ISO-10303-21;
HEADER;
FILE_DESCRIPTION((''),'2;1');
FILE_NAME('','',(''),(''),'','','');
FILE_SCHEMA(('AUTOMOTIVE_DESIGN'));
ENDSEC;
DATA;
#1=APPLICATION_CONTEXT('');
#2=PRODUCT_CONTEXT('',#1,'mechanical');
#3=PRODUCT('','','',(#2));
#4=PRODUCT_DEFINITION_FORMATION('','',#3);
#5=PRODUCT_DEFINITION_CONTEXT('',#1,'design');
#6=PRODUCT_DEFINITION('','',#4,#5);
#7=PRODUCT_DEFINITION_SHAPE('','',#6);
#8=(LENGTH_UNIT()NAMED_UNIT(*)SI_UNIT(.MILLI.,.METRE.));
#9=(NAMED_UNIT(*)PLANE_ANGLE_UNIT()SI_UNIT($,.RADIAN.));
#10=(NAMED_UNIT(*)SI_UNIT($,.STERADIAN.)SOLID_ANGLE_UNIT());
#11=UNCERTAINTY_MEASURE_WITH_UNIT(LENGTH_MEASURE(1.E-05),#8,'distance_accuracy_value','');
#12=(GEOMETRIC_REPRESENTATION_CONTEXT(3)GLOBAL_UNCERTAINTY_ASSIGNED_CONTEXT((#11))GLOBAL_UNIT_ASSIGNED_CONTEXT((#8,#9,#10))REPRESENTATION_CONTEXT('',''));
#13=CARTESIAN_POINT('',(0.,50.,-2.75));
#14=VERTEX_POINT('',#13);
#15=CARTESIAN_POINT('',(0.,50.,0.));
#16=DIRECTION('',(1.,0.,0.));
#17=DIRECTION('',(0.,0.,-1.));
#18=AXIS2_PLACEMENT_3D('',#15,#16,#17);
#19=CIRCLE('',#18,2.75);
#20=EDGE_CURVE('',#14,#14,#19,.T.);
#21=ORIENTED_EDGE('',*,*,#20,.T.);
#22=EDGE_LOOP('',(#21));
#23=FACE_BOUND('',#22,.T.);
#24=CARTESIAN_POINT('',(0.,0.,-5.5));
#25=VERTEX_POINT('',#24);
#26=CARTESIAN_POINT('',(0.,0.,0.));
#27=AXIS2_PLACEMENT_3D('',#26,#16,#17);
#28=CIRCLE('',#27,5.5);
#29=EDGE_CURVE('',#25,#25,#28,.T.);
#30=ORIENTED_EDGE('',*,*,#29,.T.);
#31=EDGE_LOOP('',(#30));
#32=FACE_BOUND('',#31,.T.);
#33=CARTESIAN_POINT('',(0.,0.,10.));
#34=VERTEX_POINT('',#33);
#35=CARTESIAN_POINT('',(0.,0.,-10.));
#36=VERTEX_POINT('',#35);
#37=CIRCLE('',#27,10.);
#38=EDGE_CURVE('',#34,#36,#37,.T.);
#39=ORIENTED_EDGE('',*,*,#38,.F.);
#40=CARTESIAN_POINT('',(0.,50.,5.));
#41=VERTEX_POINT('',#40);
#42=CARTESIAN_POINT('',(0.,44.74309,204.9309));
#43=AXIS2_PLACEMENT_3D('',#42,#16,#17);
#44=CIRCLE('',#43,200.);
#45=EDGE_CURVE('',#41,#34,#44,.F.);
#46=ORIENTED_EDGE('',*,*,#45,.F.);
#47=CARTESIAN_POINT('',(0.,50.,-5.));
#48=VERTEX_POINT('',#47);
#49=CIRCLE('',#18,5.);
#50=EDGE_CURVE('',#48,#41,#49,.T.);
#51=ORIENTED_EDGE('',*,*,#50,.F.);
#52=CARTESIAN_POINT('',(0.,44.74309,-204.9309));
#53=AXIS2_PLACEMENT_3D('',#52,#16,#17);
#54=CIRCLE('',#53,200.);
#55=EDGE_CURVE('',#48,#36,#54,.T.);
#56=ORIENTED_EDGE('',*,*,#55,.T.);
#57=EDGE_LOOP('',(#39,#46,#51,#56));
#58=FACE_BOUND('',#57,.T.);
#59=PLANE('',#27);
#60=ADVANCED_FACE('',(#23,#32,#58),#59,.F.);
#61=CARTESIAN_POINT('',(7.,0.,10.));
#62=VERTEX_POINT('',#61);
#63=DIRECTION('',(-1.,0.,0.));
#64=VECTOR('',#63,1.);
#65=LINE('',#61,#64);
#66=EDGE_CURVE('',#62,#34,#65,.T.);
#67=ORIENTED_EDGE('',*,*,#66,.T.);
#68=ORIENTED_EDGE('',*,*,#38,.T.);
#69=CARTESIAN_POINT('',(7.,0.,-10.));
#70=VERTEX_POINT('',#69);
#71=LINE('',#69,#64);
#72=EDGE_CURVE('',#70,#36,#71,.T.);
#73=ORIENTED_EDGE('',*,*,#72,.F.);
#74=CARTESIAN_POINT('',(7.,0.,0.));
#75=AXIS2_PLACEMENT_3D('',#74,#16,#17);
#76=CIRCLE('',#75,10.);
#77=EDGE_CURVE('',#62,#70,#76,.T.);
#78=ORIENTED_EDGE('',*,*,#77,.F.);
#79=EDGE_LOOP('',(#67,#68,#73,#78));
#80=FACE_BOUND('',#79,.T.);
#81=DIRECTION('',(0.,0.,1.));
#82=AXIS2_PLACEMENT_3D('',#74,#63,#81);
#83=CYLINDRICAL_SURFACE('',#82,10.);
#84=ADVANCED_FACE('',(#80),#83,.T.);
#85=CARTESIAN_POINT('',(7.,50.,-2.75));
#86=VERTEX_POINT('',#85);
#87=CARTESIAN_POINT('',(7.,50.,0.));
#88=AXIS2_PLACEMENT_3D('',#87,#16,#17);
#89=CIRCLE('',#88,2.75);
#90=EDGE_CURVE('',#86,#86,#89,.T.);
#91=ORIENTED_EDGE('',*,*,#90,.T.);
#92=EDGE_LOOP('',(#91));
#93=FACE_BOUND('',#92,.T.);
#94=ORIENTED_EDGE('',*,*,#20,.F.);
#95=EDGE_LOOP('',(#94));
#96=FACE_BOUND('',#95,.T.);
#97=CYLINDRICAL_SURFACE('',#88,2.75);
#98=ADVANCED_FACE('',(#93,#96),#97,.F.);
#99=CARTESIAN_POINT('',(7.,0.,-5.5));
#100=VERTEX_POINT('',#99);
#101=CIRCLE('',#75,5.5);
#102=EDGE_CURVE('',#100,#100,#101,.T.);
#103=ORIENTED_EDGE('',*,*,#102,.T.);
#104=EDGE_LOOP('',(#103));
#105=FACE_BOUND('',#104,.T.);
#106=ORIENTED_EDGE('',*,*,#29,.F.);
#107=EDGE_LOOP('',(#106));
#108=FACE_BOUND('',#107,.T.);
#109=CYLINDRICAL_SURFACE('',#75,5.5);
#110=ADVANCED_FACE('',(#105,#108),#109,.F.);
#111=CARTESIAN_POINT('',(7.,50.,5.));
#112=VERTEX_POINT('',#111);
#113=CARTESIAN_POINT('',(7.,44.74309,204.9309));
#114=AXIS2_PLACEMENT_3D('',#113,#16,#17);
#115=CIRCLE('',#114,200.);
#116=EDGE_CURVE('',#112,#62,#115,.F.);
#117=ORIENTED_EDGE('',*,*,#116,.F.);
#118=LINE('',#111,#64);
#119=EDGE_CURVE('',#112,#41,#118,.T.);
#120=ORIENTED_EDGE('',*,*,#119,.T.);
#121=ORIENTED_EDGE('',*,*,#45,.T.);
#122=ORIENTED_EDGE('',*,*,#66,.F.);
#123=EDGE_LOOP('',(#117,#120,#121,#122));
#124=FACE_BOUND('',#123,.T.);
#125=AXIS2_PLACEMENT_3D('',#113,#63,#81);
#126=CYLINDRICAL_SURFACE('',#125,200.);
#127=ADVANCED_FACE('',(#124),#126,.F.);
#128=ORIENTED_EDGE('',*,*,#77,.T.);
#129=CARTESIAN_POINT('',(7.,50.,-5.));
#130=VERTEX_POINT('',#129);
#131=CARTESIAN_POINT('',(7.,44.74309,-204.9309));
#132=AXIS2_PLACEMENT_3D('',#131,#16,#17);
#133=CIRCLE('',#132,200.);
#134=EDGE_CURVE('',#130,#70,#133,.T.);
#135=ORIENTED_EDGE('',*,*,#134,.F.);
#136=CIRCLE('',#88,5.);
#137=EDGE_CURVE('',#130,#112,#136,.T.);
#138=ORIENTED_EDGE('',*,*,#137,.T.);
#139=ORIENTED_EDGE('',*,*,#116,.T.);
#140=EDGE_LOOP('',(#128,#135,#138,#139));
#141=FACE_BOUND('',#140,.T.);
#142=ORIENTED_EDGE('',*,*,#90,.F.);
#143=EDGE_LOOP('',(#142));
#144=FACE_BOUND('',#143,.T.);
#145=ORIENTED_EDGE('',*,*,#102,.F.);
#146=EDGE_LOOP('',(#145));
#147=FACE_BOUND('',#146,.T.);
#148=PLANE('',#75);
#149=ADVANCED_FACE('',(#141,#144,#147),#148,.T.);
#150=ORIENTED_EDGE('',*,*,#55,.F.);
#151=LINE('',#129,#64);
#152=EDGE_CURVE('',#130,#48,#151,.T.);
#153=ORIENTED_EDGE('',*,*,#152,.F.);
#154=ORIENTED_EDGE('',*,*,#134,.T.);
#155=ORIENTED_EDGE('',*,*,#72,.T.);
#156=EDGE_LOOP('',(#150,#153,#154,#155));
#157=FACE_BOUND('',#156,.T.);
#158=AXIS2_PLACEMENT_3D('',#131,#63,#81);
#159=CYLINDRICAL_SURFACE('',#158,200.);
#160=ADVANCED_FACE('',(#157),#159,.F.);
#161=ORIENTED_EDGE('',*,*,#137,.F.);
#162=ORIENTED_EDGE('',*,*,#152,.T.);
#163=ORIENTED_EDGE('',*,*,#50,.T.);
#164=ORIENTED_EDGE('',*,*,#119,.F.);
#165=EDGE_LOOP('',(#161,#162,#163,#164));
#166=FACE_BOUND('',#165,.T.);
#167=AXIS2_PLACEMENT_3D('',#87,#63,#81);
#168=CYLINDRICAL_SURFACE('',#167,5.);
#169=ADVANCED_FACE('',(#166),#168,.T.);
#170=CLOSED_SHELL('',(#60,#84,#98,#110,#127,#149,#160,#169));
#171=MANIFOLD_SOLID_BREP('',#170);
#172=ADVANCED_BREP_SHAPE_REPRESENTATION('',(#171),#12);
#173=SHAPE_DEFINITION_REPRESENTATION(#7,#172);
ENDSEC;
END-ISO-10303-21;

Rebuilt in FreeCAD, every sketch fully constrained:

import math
import FreeCAD as App
import Part
import Sketcher

doc = App.newDocument("Part")
params = doc.addObject("Spreadsheet::Sheet", "Params")
for row, (alias, value) in enumerate([
    ("sketch1_radius", "200 mm"),
    ("sketch1_radius2", "10 mm"),
    ("sketch1_radius3", "5 mm"),
    ("pad1_length", "7 mm"),
    ("sketch2_diameter", "11 mm"),
    ("hole_diameter", "11 mm"),
    ("sketch3_diameter", "5.5 mm"),
    ("hole2_diameter", "5.5 mm"),
], start=1):
    params.set(f"A{row}", alias)
    params.set(f"B{row}", "=" + value)
    params.setAlias(f"B{row}", alias)

body = doc.addObject("PartDesign::Body", "Body")

sketch1 = body.newObject("Sketcher::SketchObject", "Sketch")
sketch1.AttachmentSupport = (doc.getObject("YZ_Plane"), [""])
sketch1.MapMode = "FlatFace"
sketch1.addGeometry([
    Part.ArcOfCircle(Part.Circle(App.Vector(44.7, 204.9, 0), App.Vector(0, 0, 1), 200), math.radians(-101.71), math.radians(-88.57)),
    Part.ArcOfCircle(Part.Circle(App.Vector(44.7, 204.9, 0), App.Vector(0, 0, 1), 200), math.radians(-102.93), math.radians(-101.71)),
    Part.ArcOfCircle(Part.Circle(App.Vector(0, 0, 0), App.Vector(0, 0, 1), 10), math.radians(90), math.radians(270)),
    Part.ArcOfCircle(Part.Circle(App.Vector(44.7, -204.9, 0), App.Vector(0, 0, 1), 200), math.radians(101.71), math.radians(102.93)),
    Part.ArcOfCircle(Part.Circle(App.Vector(44.7, -204.9, 0), App.Vector(0, 0, 1), 200), math.radians(88.57), math.radians(101.71)),
    Part.ArcOfCircle(Part.Circle(App.Vector(50, 0, 0), App.Vector(0, 0, 1), 5), math.radians(-93), math.radians(93)),
], False)
sketch1.addConstraint([
    Sketcher.Constraint("Tangent", 0, 1, 1, 2),
    Sketcher.Constraint("Coincident", 1, 1, 2, 1),
    Sketcher.Constraint("Coincident", 2, 2, 3, 2),
    Sketcher.Constraint("Tangent", 3, 1, 4, 2),
    Sketcher.Constraint("Coincident", 4, 1, 5, 1),
    Sketcher.Constraint("Coincident", 5, 2, 0, 2),
    Sketcher.Constraint("Coincident", 2, 3, -1, 1),
    Sketcher.Constraint("Equal", 1, 3),
    Sketcher.Constraint("Equal", 0, 4),
    Sketcher.Constraint("Symmetric", 0, 3, 3, 3, -1),
    Sketcher.Constraint("Symmetric", 0, 1, 3, 1, -1),
    Sketcher.Constraint("PointOnObject", 5, 3, -1),
    Sketcher.Constraint("PointOnObject", 1, 1, -2),
    Sketcher.Constraint("Radius", 0, 200.0),
    Sketcher.Constraint("Radius", 2, 10.0),
    Sketcher.Constraint("Radius", 5, 5.0),
    Sketcher.Constraint("DistanceX", -1, 1, 5, 3, 50.0),
    Sketcher.Constraint("DistanceY", -1, 1, 0, 3, 204.9309),
    Sketcher.Constraint("DistanceX", -1, 1, 0, 1, 4.167968),
])
sketch1.setExpression("Constraints[13]", "Params.sketch1_radius")
sketch1.setExpression("Constraints[14]", "Params.sketch1_radius2")
sketch1.setExpression("Constraints[15]", "Params.sketch1_radius3")
pad1 = body.newObject("PartDesign::Pad", "Pad")
pad1.Profile = sketch1
pad1.setExpression("Length", "Params.pad1_length")

sketch2 = body.newObject("Sketcher::SketchObject", "Sketch001")
sketch2.AttachmentSupport = (doc.getObject("YZ_Plane"), [""])
sketch2.MapMode = "FlatFace"
sketch2.AttachmentOffset = App.Placement(App.Vector(0, 0, 7), App.Rotation())
sketch2.addGeometry(Part.Circle(App.Vector(0, 0, 0), App.Vector(0, 0, 1), 6), False)
sketch2.addConstraint([
    Sketcher.Constraint("Coincident", 0, 3, -1, 1),
    Sketcher.Constraint("Diameter", 0, 11.0),
])
sketch2.setExpression("Constraints[1]", "Params.sketch2_diameter")
doc.recompute()
hole = body.newObject("PartDesign::Hole", "Hole")
hole.Profile = sketch2
hole.ThreadType = "None"
hole.setExpression("Diameter", "Params.hole_diameter")
hole.DepthType = "ThroughAll"

sketch3 = body.newObject("Sketcher::SketchObject", "Sketch002")
sketch3.AttachmentSupport = (doc.getObject("YZ_Plane"), [""])
sketch3.MapMode = "FlatFace"
sketch3.AttachmentOffset = App.Placement(App.Vector(0, 0, 7), App.Rotation())
sketch3.addGeometry(Part.Circle(App.Vector(50, 0, 0), App.Vector(0, 0, 1), 2.8), False)
sketch3.addConstraint([
    Sketcher.Constraint("PointOnObject", 0, 3, -1),
    Sketcher.Constraint("Diameter", 0, 5.5),
    Sketcher.Constraint("DistanceX", -1, 1, 0, 3, 50.0),
])
sketch3.setExpression("Constraints[1]", "Params.sketch3_diameter")
doc.recompute()
hole2 = body.newObject("PartDesign::Hole", "Hole001")
hole2.Profile = sketch3
hole2.ThreadType = "None"
hole2.setExpression("Diameter", "Params.hole2_diameter")
hole2.DepthType = "ThroughAll"

doc.recompute()
